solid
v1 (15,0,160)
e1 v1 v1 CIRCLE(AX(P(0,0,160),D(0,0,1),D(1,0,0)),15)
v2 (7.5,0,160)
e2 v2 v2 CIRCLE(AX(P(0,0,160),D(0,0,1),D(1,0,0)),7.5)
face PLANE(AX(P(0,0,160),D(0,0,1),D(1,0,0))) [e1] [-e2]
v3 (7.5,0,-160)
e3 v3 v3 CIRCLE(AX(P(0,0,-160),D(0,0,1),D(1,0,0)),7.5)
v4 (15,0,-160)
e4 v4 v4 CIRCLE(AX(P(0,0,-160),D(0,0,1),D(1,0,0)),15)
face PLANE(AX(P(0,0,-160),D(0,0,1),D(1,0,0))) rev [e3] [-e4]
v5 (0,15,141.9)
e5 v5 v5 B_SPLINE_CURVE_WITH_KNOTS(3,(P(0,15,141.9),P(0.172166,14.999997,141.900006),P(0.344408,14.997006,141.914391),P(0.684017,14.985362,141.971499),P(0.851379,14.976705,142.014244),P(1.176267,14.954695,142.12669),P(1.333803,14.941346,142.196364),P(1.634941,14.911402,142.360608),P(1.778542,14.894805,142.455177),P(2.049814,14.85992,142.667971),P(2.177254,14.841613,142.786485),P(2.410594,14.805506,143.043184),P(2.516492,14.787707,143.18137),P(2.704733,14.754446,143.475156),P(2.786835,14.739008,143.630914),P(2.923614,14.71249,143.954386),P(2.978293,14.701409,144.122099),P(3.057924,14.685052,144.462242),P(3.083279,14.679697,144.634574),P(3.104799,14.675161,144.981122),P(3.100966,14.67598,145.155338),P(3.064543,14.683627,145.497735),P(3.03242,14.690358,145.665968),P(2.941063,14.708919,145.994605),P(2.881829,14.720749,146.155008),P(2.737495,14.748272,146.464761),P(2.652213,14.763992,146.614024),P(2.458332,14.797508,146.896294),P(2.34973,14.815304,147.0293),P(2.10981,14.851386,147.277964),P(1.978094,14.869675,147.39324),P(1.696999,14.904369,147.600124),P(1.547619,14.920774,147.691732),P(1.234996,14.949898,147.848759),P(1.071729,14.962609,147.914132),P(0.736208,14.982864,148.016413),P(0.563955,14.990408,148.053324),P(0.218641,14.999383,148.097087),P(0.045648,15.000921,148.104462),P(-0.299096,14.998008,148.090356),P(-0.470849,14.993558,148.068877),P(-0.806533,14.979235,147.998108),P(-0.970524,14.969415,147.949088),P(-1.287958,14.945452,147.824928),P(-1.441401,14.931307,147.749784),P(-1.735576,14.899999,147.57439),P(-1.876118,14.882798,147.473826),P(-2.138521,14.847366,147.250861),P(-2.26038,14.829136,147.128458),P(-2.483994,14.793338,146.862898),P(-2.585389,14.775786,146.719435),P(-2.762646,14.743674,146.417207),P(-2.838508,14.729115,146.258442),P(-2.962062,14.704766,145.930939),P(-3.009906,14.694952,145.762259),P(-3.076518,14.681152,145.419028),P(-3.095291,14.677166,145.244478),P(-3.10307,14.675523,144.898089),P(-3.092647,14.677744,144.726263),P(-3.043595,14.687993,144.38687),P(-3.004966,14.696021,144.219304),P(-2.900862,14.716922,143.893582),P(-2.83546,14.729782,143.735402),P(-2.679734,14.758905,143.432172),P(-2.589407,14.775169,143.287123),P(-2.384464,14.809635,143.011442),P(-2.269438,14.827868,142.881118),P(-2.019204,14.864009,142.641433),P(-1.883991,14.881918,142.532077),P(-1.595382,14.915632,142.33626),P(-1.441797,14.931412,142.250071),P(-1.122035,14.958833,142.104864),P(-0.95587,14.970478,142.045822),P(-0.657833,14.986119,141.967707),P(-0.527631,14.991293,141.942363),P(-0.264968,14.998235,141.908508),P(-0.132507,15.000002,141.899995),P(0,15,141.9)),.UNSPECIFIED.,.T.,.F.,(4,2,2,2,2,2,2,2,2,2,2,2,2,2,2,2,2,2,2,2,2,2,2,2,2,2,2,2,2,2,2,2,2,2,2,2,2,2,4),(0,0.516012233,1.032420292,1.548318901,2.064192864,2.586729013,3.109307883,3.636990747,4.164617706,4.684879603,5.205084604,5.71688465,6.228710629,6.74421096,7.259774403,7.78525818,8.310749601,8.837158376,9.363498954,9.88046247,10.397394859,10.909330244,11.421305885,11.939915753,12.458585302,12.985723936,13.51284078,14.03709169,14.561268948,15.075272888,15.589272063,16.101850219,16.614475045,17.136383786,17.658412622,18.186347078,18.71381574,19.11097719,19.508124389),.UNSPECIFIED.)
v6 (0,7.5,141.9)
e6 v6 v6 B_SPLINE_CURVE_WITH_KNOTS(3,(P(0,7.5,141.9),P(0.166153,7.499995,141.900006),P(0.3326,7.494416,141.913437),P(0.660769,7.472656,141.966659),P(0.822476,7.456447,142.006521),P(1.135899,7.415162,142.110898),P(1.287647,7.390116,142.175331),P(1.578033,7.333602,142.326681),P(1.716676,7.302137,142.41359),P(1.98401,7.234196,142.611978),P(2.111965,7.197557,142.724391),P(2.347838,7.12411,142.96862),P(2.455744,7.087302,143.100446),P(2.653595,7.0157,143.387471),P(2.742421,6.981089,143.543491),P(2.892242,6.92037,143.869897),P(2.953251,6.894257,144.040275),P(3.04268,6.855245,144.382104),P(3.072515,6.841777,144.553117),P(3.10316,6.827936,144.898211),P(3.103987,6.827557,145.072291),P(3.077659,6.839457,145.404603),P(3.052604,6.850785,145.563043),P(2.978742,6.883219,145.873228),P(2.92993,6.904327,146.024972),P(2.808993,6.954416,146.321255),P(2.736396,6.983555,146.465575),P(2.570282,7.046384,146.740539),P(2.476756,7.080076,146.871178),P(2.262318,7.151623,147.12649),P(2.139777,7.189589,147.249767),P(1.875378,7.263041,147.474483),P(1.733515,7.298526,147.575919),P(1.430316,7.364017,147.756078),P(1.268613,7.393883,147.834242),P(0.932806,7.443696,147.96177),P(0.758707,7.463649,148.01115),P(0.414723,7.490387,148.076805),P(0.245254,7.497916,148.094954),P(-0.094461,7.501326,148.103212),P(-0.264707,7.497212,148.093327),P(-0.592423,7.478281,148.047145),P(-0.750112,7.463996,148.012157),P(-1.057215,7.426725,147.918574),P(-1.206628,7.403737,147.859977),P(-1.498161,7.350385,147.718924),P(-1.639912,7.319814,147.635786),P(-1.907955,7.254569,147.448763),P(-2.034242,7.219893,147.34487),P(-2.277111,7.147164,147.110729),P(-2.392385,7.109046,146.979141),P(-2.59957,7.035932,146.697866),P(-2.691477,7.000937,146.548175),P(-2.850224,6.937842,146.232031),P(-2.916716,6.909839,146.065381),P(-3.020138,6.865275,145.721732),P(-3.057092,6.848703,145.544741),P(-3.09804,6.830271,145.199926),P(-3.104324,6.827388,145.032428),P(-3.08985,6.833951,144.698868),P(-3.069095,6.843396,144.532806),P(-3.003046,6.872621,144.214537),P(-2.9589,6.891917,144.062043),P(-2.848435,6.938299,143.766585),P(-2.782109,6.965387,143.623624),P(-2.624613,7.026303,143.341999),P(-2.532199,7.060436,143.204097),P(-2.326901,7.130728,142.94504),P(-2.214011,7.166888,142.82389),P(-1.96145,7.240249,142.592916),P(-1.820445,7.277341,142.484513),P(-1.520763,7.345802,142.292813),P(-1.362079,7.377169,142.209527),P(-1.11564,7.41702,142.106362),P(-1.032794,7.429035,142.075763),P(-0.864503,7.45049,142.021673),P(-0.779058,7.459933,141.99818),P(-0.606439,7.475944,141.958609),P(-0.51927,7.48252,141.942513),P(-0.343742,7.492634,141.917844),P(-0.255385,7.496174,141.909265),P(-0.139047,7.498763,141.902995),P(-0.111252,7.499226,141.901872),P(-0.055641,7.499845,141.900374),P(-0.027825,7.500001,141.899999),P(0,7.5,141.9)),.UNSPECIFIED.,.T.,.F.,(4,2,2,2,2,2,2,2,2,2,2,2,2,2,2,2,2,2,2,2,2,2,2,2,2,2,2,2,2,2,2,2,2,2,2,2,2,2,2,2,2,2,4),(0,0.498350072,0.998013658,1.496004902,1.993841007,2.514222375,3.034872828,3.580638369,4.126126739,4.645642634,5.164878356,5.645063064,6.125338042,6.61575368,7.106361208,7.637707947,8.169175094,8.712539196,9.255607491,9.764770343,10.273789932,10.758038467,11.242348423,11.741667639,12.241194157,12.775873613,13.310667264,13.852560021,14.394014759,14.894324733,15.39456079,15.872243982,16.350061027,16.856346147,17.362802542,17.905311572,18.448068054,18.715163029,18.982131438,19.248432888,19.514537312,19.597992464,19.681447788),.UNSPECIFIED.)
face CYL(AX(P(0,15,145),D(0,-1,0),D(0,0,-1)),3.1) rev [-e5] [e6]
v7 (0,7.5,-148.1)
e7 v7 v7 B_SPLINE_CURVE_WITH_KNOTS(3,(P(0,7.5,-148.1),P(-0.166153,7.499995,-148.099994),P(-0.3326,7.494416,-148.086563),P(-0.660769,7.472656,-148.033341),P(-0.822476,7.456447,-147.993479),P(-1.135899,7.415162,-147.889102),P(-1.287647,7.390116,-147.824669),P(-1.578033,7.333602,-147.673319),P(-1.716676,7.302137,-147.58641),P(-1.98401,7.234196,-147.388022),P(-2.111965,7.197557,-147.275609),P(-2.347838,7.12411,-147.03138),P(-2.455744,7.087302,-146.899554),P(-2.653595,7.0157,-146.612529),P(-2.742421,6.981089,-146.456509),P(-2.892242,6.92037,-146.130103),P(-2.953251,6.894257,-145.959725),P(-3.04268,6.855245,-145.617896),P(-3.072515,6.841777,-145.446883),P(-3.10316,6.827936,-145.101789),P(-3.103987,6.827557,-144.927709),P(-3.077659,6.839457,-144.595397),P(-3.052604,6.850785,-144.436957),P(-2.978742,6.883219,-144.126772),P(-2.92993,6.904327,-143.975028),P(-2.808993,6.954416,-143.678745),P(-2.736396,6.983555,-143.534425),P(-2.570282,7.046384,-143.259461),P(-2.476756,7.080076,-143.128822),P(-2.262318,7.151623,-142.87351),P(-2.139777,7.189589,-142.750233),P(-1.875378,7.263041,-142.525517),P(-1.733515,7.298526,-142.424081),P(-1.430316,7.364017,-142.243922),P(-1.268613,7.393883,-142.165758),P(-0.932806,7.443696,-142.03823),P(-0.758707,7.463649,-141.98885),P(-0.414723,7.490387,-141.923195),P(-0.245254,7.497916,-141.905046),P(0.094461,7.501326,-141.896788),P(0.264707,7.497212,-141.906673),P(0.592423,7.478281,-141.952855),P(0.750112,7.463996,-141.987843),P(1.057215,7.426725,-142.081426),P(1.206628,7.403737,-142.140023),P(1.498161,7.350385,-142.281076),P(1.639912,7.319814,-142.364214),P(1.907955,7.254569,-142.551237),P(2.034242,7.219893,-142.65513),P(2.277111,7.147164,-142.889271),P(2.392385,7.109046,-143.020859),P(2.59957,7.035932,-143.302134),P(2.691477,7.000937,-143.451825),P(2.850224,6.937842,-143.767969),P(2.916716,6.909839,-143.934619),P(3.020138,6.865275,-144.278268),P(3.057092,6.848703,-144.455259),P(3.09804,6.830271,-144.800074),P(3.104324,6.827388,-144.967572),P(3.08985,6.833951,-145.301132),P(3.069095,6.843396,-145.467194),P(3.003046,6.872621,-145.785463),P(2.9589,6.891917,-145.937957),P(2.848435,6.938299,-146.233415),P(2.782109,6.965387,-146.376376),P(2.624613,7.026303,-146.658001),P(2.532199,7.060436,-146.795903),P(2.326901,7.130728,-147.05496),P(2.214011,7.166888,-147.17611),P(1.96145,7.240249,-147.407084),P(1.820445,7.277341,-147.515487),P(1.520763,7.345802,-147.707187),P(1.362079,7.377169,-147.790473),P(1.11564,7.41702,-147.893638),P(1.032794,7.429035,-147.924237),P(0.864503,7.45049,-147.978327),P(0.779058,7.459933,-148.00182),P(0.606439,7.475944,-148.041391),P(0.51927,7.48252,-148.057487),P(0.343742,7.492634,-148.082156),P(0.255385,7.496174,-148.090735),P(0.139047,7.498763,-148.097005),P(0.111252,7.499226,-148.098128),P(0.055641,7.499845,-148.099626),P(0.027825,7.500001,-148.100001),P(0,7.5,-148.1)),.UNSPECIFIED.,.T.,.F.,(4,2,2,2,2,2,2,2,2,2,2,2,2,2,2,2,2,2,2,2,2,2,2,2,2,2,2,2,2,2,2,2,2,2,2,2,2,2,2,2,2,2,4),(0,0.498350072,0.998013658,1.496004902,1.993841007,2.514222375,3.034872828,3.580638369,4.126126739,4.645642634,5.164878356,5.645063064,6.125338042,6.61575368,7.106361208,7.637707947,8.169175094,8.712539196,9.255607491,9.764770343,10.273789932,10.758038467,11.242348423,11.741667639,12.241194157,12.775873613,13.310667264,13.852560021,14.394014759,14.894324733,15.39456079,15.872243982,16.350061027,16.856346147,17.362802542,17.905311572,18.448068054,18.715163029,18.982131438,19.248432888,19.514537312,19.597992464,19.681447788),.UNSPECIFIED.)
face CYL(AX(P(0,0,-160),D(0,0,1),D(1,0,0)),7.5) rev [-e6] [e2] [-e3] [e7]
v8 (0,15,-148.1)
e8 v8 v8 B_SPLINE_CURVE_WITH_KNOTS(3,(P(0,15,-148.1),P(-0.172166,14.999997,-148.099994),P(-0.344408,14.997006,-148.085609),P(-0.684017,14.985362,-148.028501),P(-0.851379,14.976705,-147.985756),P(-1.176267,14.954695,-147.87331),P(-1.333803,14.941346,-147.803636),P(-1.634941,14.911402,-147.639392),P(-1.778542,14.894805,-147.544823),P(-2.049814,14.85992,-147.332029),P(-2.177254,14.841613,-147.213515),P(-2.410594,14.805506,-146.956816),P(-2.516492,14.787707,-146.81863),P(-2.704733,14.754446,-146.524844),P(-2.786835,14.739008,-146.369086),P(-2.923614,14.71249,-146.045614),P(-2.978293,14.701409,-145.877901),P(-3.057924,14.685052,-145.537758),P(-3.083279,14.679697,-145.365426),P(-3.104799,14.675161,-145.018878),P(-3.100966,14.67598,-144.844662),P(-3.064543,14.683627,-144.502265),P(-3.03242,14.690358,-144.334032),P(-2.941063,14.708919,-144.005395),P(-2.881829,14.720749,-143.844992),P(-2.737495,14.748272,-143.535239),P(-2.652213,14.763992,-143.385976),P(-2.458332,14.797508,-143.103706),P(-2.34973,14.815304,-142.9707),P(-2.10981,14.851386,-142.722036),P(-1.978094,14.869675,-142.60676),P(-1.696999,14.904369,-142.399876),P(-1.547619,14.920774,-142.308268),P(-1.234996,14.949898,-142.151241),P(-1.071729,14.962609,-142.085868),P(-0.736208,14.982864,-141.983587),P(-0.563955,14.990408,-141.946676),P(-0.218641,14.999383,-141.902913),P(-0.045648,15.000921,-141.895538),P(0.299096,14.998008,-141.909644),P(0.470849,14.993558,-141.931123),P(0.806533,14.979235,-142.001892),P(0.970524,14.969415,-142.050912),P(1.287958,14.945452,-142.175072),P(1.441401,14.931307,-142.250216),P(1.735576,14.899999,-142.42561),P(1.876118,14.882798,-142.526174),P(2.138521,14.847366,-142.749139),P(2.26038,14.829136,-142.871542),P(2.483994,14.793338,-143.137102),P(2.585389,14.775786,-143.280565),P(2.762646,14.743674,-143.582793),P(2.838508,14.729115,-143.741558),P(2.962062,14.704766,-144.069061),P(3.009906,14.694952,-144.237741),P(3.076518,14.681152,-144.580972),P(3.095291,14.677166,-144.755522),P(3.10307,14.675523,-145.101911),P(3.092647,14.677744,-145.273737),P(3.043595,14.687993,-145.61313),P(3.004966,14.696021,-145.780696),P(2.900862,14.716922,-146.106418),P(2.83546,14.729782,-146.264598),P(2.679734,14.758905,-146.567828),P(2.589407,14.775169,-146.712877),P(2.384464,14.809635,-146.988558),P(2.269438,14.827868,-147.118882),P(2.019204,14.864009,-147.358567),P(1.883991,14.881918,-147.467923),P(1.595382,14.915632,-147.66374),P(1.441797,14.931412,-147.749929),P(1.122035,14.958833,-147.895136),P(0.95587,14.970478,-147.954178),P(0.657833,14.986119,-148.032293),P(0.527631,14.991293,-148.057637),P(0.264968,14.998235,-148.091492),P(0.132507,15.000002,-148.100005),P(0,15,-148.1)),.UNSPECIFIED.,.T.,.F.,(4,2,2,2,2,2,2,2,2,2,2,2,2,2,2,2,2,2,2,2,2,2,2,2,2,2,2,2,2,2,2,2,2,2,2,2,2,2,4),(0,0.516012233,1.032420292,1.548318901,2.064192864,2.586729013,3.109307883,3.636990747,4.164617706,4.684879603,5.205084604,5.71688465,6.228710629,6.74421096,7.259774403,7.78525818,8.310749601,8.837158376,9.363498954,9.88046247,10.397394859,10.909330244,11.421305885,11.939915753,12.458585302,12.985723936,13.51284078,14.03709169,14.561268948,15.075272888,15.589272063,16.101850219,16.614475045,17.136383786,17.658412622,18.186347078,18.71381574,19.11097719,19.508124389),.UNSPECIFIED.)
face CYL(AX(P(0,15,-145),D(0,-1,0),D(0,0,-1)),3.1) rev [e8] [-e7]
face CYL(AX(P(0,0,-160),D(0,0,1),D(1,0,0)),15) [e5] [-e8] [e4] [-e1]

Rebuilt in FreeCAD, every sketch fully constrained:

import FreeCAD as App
import Part
import Sketcher
from FreeCAD import Vector

doc = App.newDocument("Part")
body = doc.addObject("PartDesign::Body", "Body")

sketch1 = body.newObject("Sketcher::SketchObject", "Sketch")
sketch1.AttachmentSupport = (doc.getObject("XY_Plane"), [""])
sketch1.MapMode = "FlatFace"
sketch1.addGeometry([
    Part.Circle(Vector(0, 0, 0), Vector(0, 0, 1), 15),
    Part.Circle(Vector(0, 0, 0), Vector(0, 0, 1), 7.5),
], False)
sketch1.addConstraint([
    Sketcher.Constraint("Coincident", 0, 3, -1, 1),
    Sketcher.Constraint("Coincident", 1, 3, -1, 1),
    Sketcher.Constraint("Diameter", 0, 30.0),
    Sketcher.Constraint("Diameter", 1, 15.0),
])
pad1 = body.newObject("PartDesign::Pad", "Pad")
pad1.Profile = sketch1
pad1.Type = "TwoLengths"
pad1.Length = 160
pad1.Length2 = 160

sketch2 = body.newObject("Sketcher::SketchObject", "Sketch001")
sketch2.AttachmentSupport = (doc.getObject("XZ_Plane"), [""])
sketch2.MapMode = "FlatFace"
sketch2.addGeometry(Part.Circle(Vector(0, 145, 0), Vector(0, 0, 1), 3.1), False)
sketch2.addConstraint([
    Sketcher.Constraint("PointOnObject", 0, 3, -2),
    Sketcher.Constraint("Diameter", 0, 6.2),
    Sketcher.Constraint("DistanceY", -1, 1, 0, 3, 145.0),
])
pocket1 = body.newObject("PartDesign::Pocket", "Pocket")
pocket1.Profile = sketch2
pocket1.Type = "ThroughAll"
doc.recompute()

mirrored = body.newObject("PartDesign::Mirrored", "Mirrored")
mirrored.Originals = [pocket1]
mirrored.MirrorPlane = (doc.getObject("XY_Plane"), [""])
body.Tip = mirrored

doc.recompute()
